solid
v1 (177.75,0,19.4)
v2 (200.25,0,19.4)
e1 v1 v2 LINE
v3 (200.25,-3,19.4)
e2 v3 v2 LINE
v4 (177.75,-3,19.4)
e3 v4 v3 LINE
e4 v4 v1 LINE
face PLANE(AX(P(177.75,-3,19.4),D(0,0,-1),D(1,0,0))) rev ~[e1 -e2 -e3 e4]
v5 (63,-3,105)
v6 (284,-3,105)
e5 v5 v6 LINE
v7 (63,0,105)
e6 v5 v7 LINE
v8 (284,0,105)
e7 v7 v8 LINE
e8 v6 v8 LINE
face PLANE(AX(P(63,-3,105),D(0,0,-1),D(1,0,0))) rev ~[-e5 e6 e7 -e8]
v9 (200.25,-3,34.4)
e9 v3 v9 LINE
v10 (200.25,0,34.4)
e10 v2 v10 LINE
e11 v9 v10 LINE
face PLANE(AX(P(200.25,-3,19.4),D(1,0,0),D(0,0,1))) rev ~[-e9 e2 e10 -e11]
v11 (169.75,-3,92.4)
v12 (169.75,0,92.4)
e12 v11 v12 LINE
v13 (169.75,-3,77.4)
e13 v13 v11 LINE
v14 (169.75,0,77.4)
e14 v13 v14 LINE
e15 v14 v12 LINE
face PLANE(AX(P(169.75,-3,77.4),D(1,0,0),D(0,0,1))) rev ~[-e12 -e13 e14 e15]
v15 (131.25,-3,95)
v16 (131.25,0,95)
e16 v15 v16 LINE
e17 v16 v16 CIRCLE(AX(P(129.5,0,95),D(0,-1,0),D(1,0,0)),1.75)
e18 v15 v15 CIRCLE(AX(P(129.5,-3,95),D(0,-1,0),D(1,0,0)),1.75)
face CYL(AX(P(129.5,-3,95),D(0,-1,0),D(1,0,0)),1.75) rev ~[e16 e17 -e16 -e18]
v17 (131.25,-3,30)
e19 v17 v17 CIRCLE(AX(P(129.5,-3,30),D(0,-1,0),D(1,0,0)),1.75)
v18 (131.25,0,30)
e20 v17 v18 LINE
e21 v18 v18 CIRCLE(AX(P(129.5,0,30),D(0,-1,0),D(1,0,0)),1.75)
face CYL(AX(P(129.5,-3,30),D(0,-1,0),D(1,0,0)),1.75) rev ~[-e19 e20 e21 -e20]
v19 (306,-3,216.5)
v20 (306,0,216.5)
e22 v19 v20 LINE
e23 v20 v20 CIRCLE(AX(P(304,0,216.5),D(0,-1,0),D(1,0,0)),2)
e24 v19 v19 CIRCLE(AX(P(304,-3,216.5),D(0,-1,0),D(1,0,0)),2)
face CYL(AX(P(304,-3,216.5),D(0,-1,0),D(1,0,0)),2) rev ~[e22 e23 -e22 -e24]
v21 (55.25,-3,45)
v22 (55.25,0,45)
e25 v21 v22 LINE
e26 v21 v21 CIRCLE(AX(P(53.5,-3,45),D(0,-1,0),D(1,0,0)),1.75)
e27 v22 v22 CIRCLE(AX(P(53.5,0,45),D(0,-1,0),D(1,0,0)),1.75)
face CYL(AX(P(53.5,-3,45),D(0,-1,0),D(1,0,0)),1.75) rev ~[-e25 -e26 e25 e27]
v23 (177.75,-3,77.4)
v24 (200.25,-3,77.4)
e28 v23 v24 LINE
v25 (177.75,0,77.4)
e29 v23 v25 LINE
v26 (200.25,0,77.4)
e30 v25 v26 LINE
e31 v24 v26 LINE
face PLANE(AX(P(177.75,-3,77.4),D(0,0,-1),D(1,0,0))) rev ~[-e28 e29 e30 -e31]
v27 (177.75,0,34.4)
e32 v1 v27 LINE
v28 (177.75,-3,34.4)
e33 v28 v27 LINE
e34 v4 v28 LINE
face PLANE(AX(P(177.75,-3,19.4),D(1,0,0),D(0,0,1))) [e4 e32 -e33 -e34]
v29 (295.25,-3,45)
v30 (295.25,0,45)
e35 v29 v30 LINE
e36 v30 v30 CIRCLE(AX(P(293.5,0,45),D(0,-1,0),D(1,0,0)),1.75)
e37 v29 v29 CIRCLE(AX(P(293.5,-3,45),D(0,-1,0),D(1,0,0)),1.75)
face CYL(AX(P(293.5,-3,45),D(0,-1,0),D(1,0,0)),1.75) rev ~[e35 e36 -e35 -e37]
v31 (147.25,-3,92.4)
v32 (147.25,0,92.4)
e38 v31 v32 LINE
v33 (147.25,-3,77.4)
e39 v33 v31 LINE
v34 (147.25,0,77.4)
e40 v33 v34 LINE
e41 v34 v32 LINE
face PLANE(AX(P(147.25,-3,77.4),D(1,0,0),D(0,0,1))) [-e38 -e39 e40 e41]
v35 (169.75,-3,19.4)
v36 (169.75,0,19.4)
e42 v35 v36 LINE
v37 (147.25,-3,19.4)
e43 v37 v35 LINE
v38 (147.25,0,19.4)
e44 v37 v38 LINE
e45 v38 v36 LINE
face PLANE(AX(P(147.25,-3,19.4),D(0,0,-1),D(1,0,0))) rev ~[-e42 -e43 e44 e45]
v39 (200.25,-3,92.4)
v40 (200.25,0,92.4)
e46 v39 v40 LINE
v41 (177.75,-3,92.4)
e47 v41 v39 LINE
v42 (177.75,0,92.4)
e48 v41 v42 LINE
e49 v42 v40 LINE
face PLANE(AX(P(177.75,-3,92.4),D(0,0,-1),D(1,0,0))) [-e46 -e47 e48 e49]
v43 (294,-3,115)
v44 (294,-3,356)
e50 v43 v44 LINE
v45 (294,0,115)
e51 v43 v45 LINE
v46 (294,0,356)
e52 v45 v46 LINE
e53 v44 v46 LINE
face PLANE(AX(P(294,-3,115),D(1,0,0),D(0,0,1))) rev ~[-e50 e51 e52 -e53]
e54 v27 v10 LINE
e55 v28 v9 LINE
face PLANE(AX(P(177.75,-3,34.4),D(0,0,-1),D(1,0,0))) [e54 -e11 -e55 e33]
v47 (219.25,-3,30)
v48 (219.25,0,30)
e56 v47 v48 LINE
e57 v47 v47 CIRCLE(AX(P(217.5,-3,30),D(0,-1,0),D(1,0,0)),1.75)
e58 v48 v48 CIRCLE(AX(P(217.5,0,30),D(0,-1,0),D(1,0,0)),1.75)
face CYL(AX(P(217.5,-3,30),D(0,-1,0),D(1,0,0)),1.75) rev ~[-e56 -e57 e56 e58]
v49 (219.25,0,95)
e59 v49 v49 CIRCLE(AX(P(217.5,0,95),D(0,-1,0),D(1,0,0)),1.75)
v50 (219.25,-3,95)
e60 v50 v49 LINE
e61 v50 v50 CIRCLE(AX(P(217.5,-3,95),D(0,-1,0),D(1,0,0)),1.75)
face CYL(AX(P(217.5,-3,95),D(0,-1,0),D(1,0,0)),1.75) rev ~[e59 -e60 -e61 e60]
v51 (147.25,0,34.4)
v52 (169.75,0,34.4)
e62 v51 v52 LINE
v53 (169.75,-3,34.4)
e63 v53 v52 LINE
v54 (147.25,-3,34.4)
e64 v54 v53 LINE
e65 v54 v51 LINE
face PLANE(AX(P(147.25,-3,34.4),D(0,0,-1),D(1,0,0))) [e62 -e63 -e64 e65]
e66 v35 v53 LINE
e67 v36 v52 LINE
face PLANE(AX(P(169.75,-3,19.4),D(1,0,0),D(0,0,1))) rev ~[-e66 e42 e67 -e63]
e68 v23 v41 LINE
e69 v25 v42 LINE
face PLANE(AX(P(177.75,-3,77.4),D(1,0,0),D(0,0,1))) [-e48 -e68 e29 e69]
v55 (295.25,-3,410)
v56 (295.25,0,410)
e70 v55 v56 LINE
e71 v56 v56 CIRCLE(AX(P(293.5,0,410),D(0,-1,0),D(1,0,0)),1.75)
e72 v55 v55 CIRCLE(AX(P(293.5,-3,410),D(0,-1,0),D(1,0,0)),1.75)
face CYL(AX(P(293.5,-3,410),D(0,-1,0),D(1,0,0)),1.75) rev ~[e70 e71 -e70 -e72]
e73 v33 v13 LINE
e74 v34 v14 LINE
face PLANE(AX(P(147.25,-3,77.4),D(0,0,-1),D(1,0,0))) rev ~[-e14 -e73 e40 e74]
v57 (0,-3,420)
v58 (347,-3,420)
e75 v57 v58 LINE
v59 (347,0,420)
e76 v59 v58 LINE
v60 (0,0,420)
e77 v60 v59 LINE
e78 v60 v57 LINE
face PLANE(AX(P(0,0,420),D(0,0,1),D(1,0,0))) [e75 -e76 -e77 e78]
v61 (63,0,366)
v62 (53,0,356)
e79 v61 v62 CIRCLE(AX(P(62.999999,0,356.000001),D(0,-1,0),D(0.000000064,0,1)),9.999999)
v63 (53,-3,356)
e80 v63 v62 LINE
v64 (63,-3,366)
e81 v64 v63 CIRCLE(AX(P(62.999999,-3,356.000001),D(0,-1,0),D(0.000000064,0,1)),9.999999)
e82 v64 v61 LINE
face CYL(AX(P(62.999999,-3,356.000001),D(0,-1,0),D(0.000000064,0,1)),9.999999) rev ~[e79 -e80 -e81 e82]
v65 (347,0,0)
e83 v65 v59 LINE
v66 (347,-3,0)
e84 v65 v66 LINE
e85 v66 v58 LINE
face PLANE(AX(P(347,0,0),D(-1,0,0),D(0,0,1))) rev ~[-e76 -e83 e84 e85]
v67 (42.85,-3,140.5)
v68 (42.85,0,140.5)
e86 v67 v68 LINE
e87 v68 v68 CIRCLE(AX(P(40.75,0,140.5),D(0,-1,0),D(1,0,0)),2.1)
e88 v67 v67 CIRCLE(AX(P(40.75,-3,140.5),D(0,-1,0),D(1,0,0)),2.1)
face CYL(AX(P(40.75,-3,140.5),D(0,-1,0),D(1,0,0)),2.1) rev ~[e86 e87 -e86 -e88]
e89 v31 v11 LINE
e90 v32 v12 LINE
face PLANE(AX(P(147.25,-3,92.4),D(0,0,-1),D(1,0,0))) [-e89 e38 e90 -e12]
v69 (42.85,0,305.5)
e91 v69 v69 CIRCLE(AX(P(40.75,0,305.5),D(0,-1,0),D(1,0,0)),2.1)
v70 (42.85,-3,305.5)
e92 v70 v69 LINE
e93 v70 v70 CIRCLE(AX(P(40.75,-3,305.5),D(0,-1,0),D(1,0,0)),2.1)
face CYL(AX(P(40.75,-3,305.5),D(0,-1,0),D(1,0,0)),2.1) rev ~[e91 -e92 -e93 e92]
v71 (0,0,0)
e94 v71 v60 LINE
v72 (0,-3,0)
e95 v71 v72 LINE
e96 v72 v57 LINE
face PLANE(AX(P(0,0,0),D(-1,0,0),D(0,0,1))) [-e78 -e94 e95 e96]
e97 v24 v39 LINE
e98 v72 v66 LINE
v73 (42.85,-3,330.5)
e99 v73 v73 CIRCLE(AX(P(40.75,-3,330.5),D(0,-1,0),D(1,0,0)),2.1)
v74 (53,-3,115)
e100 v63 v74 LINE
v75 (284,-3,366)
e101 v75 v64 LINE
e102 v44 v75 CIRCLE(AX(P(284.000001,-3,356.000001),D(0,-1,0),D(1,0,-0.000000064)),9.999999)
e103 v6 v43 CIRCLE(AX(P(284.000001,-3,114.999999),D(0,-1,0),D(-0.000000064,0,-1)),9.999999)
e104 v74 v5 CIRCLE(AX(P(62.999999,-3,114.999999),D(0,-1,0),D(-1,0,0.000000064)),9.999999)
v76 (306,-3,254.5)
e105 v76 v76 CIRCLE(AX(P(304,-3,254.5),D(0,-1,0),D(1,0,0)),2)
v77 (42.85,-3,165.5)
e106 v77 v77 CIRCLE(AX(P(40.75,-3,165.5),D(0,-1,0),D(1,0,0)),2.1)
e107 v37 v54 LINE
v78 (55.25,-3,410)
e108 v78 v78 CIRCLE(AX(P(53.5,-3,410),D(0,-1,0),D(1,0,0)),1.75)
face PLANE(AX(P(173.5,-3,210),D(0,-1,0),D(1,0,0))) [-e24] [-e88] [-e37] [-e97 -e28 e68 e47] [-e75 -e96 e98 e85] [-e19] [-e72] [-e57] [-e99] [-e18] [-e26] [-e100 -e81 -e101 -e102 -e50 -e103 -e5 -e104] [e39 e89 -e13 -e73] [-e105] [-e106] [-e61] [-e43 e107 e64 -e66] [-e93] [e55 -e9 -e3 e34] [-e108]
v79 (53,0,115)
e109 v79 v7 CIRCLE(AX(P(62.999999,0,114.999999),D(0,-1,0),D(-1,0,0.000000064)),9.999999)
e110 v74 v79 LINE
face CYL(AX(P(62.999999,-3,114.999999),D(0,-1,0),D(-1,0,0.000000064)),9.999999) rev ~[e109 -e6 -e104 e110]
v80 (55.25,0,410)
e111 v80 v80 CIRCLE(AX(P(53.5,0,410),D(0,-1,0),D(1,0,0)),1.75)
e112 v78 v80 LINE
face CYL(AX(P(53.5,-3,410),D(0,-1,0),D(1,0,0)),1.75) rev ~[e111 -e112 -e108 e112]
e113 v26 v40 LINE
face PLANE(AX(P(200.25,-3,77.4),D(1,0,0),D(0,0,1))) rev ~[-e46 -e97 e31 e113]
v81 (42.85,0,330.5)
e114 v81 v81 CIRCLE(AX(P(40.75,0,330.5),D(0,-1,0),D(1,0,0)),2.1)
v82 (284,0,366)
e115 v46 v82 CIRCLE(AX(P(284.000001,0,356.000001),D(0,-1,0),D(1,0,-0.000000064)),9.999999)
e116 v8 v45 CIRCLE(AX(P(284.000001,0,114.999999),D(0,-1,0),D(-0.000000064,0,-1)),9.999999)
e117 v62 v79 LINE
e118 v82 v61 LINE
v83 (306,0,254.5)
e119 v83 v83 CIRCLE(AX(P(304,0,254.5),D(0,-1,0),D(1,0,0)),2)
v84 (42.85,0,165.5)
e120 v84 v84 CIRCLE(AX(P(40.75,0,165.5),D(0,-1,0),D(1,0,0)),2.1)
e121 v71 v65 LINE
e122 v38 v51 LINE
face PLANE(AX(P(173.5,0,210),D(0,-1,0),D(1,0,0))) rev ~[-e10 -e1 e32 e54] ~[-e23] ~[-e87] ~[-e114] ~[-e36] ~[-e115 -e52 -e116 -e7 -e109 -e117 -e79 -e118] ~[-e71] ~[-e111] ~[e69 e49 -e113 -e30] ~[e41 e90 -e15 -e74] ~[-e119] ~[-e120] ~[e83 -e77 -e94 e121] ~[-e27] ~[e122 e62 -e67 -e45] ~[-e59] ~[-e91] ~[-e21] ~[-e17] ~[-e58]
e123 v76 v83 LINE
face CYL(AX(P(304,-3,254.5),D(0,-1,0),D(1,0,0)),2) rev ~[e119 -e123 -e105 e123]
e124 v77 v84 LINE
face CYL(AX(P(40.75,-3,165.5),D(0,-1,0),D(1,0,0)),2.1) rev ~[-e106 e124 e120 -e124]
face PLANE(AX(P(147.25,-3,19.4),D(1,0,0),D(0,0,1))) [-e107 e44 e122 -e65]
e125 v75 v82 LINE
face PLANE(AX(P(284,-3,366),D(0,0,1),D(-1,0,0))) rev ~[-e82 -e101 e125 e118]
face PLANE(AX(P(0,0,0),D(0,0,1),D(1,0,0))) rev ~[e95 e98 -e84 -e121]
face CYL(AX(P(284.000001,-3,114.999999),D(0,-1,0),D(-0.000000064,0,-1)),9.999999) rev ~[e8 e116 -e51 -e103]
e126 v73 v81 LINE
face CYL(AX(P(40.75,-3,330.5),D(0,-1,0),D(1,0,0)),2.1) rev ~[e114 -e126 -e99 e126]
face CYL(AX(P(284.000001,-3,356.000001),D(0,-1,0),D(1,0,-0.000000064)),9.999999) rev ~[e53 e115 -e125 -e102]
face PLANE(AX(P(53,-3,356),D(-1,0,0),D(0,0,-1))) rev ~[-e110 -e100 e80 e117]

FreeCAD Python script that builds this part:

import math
import FreeCAD as App
import Part
import Sketcher

V = App.Vector
Q = App.Units.Quantity


def add_polygon(sketch, points):
    """Adds a closed chain of lines whose ends are joined by coincident constraints."""
    first, n = sketch.GeometryCount, len(points)
    for a, b in zip(points, points[1:] + points[:1]):
        sketch.addGeometry(Part.LineSegment(App.Vector(*a, 0), App.Vector(*b, 0)), False)
    for i in range(n):
        sketch.addConstraint(Sketcher.Constraint("Coincident", first + i, 2, first + (i + 1) % n, 1))

doc = App.newDocument("Part")
body = doc.addObject("PartDesign::Body", "Body")

sketch1 = doc.addObject("Sketcher::SketchObject", "Sketch")
body.addObject(sketch1)
sketch1.AttachmentSupport = (doc.XZ_Plane, [""])
sketch1.MapMode = "FlatFace"
add_polygon(sketch1, [(0, 420), (0, 0), (347, 0), (347, 420)])
sketch1.addConstraint(Sketcher.Constraint("Vertical", 0))
sketch1.addConstraint(Sketcher.Constraint("Horizontal", 1))
sketch1.addConstraint(Sketcher.Constraint("Vertical", 2))
sketch1.addConstraint(Sketcher.Constraint("Horizontal", 3))
sketch1.addConstraint(Sketcher.Constraint("Coincident", 0, 2, -1, 1))
sketch1.addConstraint(Sketcher.Constraint("DistanceX", 1, 1, 1, 2, Q("347 mm")))
sketch1.addConstraint(Sketcher.Constraint("DistanceY", 0, 2, 0, 1, Q("420 mm")))
pad1 = doc.addObject("PartDesign::Pad", "Pad")
body.addObject(pad1)
pad1.Profile = sketch1
pad1.Length = 3

sketch2 = doc.addObject("Sketcher::SketchObject", "Sketch001")
body.addObject(sketch2)
sketch2.AttachmentSupport = (doc.XZ_Plane, [""])
sketch2.MapMode = "FlatFace"
sketch2.AttachmentOffset = App.Placement(V(0, 0, 3), App.Rotation())
sketch2.addGeometry(Part.Circle(V(53.5, 45, 0), V(0, 0, 1), 1.8), False)
sketch2.addGeometry(Part.Circle(V(293.5, 45, 0), V(0, 0, 1), 1.8), False)
sketch2.addGeometry(Part.Circle(V(293.5, 410, 0), V(0, 0, 1), 1.8), False)
sketch2.addGeometry(Part.Circle(V(53.5, 410, 0), V(0, 0, 1), 1.8), False)
sketch2.addConstraint(Sketcher.Constraint("Equal", 0, 1))
sketch2.addConstraint(Sketcher.Constraint("Equal", 1, 2))
sketch2.addConstraint(Sketcher.Constraint("Equal", 2, 3))
sketch2.addConstraint(Sketcher.Constraint("Horizontal", 0, 3, 1, 3))
sketch2.addConstraint(Sketcher.Constraint("Horizontal", 2, 3, 3, 3))
sketch2.addConstraint(Sketcher.Constraint("Vertical", 1, 3, 2, 3))
sketch2.addConstraint(Sketcher.Constraint("Vertical", 0, 3, 3, 3))
sketch2.addConstraint(Sketcher.Constraint("Diameter", 0, Q("3.5 mm")))
sketch2.addConstraint(Sketcher.Constraint("DistanceY", -1, 1, 0, 3, Q("45 mm")))
sketch2.addConstraint(Sketcher.Constraint("DistanceY", -1, 1, 2, 3, Q("410 mm")))
sketch2.addConstraint(Sketcher.Constraint("DistanceX", 0, 3, 1, 3, Q("240 mm")))
sketch2.addConstraint(Sketcher.Constraint("DistanceX", -1, 1, 0, 3, Q("53.5 mm")))
pocket1 = doc.addObject("PartDesign::Pocket", "Pocket")
body.addObject(pocket1)
pocket1.Profile = sketch2
pocket1.Type = "ThroughAll"

sketch3 = doc.addObject("Sketcher::SketchObject", "Sketch002")
body.addObject(sketch3)
sketch3.AttachmentSupport = (doc.XZ_Plane, [""])
sketch3.MapMode = "FlatFace"
sketch3.AttachmentOffset = App.Placement(V(0, 0, 3), App.Rotation())
sketch3.addGeometry(Part.LineSegment(V(53, 356, 0), V(53, 115, 0)), False)
sketch3.addGeometry(Part.ArcOfCircle(Part.Circle(V(63, 115, 0), V(0, 0, 1), 10), math.radians(180), math.radians(270)), False)
sketch3.addGeometry(Part.LineSegment(V(63, 105, 0), V(284, 105, 0)), False)
sketch3.addGeometry(Part.ArcOfCircle(Part.Circle(V(284, 115, 0), V(0, 0, 1), 10), math.radians(-90), math.radians(0)), False)
sketch3.addGeometry(Part.LineSegment(V(294, 115, 0), V(294, 356, 0)), False)
sketch3.addGeometry(Part.ArcOfCircle(Part.Circle(V(284, 356, 0), V(0, 0, 1), 10), math.radians(0), math.radians(90)), False)
sketch3.addGeometry(Part.LineSegment(V(284, 366, 0), V(63, 366, 0)), False)
sketch3.addGeometry(Part.ArcOfCircle(Part.Circle(V(63, 356, 0), V(0, 0, 1), 10), math.radians(90), math.radians(180)), False)
sketch3.addConstraint(Sketcher.Constraint("Tangent", 0, 2, 1, 1))
sketch3.addConstraint(Sketcher.Constraint("Tangent", 1, 2, 2, 1))
sketch3.addConstraint(Sketcher.Constraint("Tangent", 2, 2, 3, 1))
sketch3.addConstraint(Sketcher.Constraint("Tangent", 3, 2, 4, 1))
sketch3.addConstraint(Sketcher.Constraint("Tangent", 4, 2, 5, 1))
sketch3.addConstraint(Sketcher.Constraint("Tangent", 5, 2, 6, 1))
sketch3.addConstraint(Sketcher.Constraint("Tangent", 6, 2, 7, 1))
sketch3.addConstraint(Sketcher.Constraint("Tangent", 7, 2, 0, 1))
sketch3.addConstraint(Sketcher.Constraint("Vertical", 0))
sketch3.addConstraint(Sketcher.Constraint("Horizontal", 2))
sketch3.addConstraint(Sketcher.Constraint("Vertical", 4))
sketch3.addConstraint(Sketcher.Constraint("Horizontal", 6))
sketch3.addConstraint(Sketcher.Constraint("Equal", 1, 3))
sketch3.addConstraint(Sketcher.Constraint("Equal", 3, 5))
sketch3.addConstraint(Sketcher.Constraint("Equal", 5, 7))
sketch3.addConstraint(Sketcher.Constraint("Radius", 1, Q("9.999999 mm")))
sketch3.addConstraint(Sketcher.Constraint("DistanceX", 2, 1, 2, 2, Q("221 mm")))
sketch3.addConstraint(Sketcher.Constraint("DistanceY", 0, 2, 0, 1, Q("241 mm")))
sketch3.addConstraint(Sketcher.Constraint("DistanceX", -1, 1, 1, 3, Q("62.999999 mm")))
sketch3.addConstraint(Sketcher.Constraint("DistanceY", -1, 1, 1, 3, Q("114.999999 mm")))
pocket2 = doc.addObject("PartDesign::Pocket", "Pocket001")
body.addObject(pocket2)
pocket2.Profile = sketch3
pocket2.Length = 5

sketch4 = doc.addObject("Sketcher::SketchObject", "Sketch003")
body.addObject(sketch4)
sketch4.AttachmentSupport = (doc.XZ_Plane, [""])
sketch4.MapMode = "FlatFace"
sketch4.AttachmentOffset = App.Placement(V(0, 0, 3), App.Rotation())
sketch4.addGeometry(Part.Circle(V(129.5, 30, 0), V(0, 0, 1), 1.8), False)
sketch4.addGeometry(Part.Circle(V(129.5, 95, 0), V(0, 0, 1), 1.8), False)
sketch4.addGeometry(Part.Circle(V(217.5, 95, 0), V(0, 0, 1), 1.8), False)
sketch4.addGeometry(Part.Circle(V(217.5, 30, 0), V(0, 0, 1), 1.8), False)
sketch4.addConstraint(Sketcher.Constraint("Equal", 0, 1))
sketch4.addConstraint(Sketcher.Constraint("Equal", 1, 2))
sketch4.addConstraint(Sketcher.Constraint("Equal", 2, 3))
sketch4.addConstraint(Sketcher.Constraint("Horizontal", 1, 3, 2, 3))
sketch4.addConstraint(Sketcher.Constraint("Horizontal", 0, 3, 3, 3))
sketch4.addConstraint(Sketcher.Constraint("Vertical", 0, 3, 1, 3))
sketch4.addConstraint(Sketcher.Constraint("Vertical", 2, 3, 3, 3))
sketch4.addConstraint(Sketcher.Constraint("Diameter", 0, Q("3.5 mm")))
sketch4.addConstraint(Sketcher.Constraint("DistanceY", -1, 1, 0, 3, Q("30 mm")))
sketch4.addConstraint(Sketcher.Constraint("DistanceY", -1, 1, 1, 3, Q("95 mm")))
sketch4.addConstraint(Sketcher.Constraint("DistanceX", 1, 3, 2, 3, Q("88 mm")))
sketch4.addConstraint(Sketcher.Constraint("DistanceX", -1, 1, 0, 3, Q("129.5 mm")))
pocket3 = doc.addObject("PartDesign::Pocket", "Pocket002")
body.addObject(pocket3)
pocket3.Profile = sketch4
pocket3.Type = "ThroughAll"

sketch5 = doc.addObject("Sketcher::SketchObject", "Sketch004")
body.addObject(sketch5)
sketch5.AttachmentSupport = (doc.XZ_Plane, [""])
sketch5.MapMode = "FlatFace"
sketch5.AttachmentOffset = App.Placement(V(0, 0, 3), App.Rotation())
add_polygon(sketch5, [(147, 92), (147, 77), (170, 77), (170, 92)])
add_polygon(sketch5, [(178, 92), (178, 77), (200, 77), (200, 92)])
sketch5.addConstraint(Sketcher.Constraint("Vertical", 0))
sketch5.addConstraint(Sketcher.Constraint("Horizontal", 1))
sketch5.addConstraint(Sketcher.Constraint("Vertical", 2))
sketch5.addConstraint(Sketcher.Constraint("Horizontal", 3))
sketch5.addConstraint(Sketcher.Constraint("Vertical", 4))
sketch5.addConstraint(Sketcher.Constraint("Horizontal", 5))
sketch5.addConstraint(Sketcher.Constraint("Vertical", 6))
sketch5.addConstraint(Sketcher.Constraint("Horizontal", 7))
sketch5.addConstraint(Sketcher.Constraint("Horizontal", 1, 2, 4, 2))
sketch5.addConstraint(Sketcher.Constraint("Horizontal", 3, 2, 6, 2))
sketch5.addConstraint(Sketcher.Constraint("Equal", 3, 5))
sketch5.addConstraint(Sketcher.Constraint("DistanceY", 0, 2, 0, 1, Q("15 mm")))
sketch5.addConstraint(Sketcher.Constraint("DistanceX", 1, 1, 1, 2, Q("22.5 mm")))
sketch5.addConstraint(Sketcher.Constraint("DistanceX", 1, 2, 4, 2, Q("8 mm")))
sketch5.addConstraint(Sketcher.Constraint("DistanceY", -1, 1, 0, 2, Q("77.4 mm")))
sketch5.addConstraint(Sketcher.Constraint("DistanceX", -1, 1, 0, 2, Q("147.25 mm")))
pocket4 = doc.addObject("PartDesign::Pocket", "Pocket003")
body.addObject(pocket4)
pocket4.Profile = sketch5
pocket4.Length = 3
doc.recompute()

linearpattern = doc.addObject("PartDesign::LinearPattern", "LinearPattern")
body.addObject(linearpattern)
linearpattern.Originals = [pocket4]
linearpattern.Direction = (doc.Z_Axis, [""])
linearpattern.Mode = "offset"
linearpattern.Offset = 58
linearpattern.Occurrences = 2
linearpattern.Reversed = True
body.Tip = linearpattern

sketch6 = doc.addObject("Sketcher::SketchObject", "Sketch005")
body.addObject(sketch6)
sketch6.AttachmentSupport = (doc.XZ_Plane, [""])
sketch6.MapMode = "FlatFace"
sketch6.AttachmentOffset = App.Placement(V(0, 0, 3), App.Rotation())
sketch6.addGeometry(Part.Circle(V(40.8, 330.5, 0), V(0, 0, 1), 2.1), False)
sketch6.addGeometry(Part.Circle(V(40.8, 305.5, 0), V(0, 0, 1), 2.1), False)
sketch6.addGeometry(Part.Circle(V(40.8, 165.5, 0), V(0, 0, 1), 2.1), False)
sketch6.addGeometry(Part.Circle(V(40.8, 140.5, 0), V(0, 0, 1), 2.1), False)
sketch6.addGeometry(Part.Circle(V(304, 254.5, 0), V(0, 0, 1), 2), False)
sketch6.addGeometry(Part.Circle(V(304, 216.5, 0), V(0, 0, 1), 2), False)
sketch6.addConstraint(Sketcher.Constraint("Equal", 0, 1))
sketch6.addConstraint(Sketcher.Constraint("Equal", 1, 2))
sketch6.addConstraint(Sketcher.Constraint("Equal", 2, 3))
sketch6.addConstraint(Sketcher.Constraint("Equal", 4, 5))
sketch6.addConstraint(Sketcher.Constraint("Vertical", 0, 3, 1, 3))
sketch6.addConstraint(Sketcher.Constraint("Vertical", 1, 3, 2, 3))
sketch6.addConstraint(Sketcher.Constraint("Vertical", 2, 3, 3, 3))
sketch6.addConstraint(Sketcher.Constraint("Vertical", 4, 3, 5, 3))
sketch6.addConstraint(Sketcher.Constraint("Diameter", 4, Q("4 mm")))
sketch6.addConstraint(Sketcher.Constraint("Diameter", 0, Q("4.2 mm")))
sketch6.addConstraint(Sketcher.Constraint("DistanceX", -1, 1, 4, 3, Q("304 mm")))
sketch6.addConstraint(Sketcher.Constraint("DistanceY", 1, 3, 0, 3, Q("25 mm")))
sketch6.addConstraint(Sketcher.Constraint("DistanceY", 2, 3, 1, 3, Q("140 mm")))
sketch6.addConstraint(Sketcher.Constraint("DistanceY", 3, 3, 2, 3, Q("25 mm")))
sketch6.addConstraint(Sketcher.Constraint("DistanceY", 4, 3, 1, 3, Q("51 mm")))
sketch6.addConstraint(Sketcher.Constraint("DistanceY", 5, 3, 4, 3, Q("38 mm")))
sketch6.addConstraint(Sketcher.Constraint("DistanceY", -1, 1, 0, 3, Q("330.5 mm")))
sketch6.addConstraint(Sketcher.Constraint("DistanceX", -1, 1, 0, 3, Q("40.75 mm")))
pocket5 = doc.addObject("PartDesign::Pocket", "Pocket004")
body.addObject(pocket5)
pocket5.Profile = sketch6
pocket5.Type = "ThroughAll"

doc.recompute()
